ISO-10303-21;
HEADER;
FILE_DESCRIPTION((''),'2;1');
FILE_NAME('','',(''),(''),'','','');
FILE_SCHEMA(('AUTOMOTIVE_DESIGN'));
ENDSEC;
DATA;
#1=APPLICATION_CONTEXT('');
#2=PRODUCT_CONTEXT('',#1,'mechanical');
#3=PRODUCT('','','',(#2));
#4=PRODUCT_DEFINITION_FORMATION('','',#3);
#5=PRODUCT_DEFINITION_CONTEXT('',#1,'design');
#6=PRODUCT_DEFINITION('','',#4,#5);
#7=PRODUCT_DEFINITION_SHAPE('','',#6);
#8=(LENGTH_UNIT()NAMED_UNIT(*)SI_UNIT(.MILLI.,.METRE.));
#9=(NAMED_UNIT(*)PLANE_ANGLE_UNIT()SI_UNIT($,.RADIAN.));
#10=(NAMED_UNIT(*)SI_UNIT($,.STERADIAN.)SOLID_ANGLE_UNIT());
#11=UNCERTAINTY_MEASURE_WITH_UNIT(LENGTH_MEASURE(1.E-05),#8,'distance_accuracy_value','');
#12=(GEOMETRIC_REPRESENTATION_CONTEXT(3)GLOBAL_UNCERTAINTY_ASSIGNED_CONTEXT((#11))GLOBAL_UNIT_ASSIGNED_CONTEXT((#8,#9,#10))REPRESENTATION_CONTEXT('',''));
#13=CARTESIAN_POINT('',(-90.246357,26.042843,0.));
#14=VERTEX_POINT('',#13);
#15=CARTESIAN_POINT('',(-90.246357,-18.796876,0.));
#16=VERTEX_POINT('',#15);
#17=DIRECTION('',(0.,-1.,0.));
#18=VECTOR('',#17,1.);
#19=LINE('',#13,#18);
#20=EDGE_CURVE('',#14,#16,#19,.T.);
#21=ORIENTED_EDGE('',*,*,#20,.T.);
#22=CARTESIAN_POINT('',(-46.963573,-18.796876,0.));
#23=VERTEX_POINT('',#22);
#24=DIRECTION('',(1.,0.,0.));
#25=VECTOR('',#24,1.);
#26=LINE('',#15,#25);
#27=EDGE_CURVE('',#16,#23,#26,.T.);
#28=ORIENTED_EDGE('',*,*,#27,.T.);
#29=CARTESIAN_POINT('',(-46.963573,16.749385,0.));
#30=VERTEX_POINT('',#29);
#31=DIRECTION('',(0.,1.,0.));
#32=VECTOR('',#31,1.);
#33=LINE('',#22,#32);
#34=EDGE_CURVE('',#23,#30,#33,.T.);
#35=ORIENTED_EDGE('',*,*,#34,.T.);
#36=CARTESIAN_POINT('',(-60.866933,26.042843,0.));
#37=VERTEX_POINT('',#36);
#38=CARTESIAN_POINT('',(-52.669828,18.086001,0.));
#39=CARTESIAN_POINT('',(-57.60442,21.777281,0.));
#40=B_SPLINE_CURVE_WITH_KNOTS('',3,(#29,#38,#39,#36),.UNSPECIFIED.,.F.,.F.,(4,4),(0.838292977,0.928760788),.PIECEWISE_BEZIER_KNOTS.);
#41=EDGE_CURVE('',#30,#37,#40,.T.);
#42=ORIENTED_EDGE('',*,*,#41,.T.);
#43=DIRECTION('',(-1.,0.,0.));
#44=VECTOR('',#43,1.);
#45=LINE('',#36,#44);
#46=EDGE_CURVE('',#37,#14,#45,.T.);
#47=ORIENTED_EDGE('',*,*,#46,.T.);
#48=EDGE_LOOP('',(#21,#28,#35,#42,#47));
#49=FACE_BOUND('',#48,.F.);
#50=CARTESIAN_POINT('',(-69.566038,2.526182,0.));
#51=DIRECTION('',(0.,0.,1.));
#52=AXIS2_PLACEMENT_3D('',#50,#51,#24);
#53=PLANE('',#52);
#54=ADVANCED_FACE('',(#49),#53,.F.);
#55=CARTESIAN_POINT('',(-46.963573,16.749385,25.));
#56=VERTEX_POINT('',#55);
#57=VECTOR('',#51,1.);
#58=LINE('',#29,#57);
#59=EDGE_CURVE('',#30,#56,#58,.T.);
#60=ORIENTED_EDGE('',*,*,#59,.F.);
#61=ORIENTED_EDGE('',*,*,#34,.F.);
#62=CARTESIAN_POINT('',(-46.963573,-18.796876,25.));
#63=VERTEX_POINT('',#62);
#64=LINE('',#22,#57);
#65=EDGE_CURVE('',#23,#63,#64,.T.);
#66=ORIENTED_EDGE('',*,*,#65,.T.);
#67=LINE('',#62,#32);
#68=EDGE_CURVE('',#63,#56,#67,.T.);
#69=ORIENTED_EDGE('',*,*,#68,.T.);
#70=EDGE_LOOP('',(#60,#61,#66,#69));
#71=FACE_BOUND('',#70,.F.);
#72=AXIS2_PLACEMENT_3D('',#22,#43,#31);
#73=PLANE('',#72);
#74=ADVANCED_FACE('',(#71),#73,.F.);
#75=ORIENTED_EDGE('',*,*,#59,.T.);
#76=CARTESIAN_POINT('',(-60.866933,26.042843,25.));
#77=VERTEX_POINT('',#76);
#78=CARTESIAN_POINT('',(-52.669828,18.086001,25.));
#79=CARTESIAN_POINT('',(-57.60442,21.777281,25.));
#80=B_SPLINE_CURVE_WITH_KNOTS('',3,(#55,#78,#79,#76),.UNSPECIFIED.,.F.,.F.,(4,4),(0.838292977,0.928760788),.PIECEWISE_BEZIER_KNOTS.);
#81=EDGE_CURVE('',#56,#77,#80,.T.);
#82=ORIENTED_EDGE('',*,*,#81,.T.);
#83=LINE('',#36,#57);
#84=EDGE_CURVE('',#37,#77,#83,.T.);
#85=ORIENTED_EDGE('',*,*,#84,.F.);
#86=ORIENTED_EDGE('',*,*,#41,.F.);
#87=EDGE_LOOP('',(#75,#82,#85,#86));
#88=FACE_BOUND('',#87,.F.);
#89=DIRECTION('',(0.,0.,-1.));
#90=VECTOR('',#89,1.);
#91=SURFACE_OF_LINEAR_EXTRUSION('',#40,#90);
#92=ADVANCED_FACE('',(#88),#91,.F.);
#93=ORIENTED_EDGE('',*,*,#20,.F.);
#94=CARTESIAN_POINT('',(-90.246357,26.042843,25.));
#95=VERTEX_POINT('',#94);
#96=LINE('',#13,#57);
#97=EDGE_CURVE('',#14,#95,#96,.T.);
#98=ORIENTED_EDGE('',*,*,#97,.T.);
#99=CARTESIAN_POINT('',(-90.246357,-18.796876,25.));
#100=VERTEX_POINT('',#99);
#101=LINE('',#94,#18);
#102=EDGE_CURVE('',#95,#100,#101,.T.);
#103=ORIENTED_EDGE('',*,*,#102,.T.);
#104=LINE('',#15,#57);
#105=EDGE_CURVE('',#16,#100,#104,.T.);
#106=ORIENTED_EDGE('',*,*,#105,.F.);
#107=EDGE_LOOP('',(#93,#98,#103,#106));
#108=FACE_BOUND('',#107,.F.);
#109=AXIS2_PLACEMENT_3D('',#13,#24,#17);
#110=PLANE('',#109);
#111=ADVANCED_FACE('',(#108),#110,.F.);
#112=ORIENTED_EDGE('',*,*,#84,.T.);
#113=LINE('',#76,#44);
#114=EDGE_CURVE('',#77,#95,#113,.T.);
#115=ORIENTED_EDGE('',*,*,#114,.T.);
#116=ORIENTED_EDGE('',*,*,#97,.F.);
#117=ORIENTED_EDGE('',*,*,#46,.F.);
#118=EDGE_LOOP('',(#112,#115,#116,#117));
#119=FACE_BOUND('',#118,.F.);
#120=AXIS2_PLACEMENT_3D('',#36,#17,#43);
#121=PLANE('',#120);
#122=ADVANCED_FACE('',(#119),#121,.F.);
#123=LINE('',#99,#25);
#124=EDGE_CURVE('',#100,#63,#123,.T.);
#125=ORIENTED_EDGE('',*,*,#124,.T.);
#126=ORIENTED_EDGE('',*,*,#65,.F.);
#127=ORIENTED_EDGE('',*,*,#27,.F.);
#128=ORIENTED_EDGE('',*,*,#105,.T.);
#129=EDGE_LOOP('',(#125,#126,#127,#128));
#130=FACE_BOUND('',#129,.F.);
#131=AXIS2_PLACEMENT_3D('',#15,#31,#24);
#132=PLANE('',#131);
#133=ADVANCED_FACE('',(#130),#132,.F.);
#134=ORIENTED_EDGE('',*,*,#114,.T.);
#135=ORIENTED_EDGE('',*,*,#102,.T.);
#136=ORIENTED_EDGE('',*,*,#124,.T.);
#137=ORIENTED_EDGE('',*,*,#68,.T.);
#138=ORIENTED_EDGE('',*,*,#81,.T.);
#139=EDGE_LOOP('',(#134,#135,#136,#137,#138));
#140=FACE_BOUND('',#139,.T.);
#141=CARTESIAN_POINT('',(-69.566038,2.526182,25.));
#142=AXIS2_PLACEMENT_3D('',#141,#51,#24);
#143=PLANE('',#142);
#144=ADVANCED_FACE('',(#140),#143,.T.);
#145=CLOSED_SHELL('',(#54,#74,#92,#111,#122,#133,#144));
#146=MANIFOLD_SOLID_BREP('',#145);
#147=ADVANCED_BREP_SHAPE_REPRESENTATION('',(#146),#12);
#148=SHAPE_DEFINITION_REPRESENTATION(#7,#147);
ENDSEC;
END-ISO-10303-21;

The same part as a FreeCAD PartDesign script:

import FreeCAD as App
import Part
import Sketcher
from FreeCAD import Vector

doc = App.newDocument("Part")
body = doc.addObject("PartDesign::Body", "Body")

# Sketch on XY plane
sketch1 = doc.addObject("Sketcher::SketchObject", "Sketch")
body.addObject(sketch1)
sketch1.AttachmentSupport = (doc.XY_Plane, [""])
sketch1.MapMode = "FlatFace"
sketch1.addGeometry(Part.LineSegment(Vector(-60.866933, 26.042843, 0), Vector(-90.246357, 26.042843, 0)), False)
sketch1.addGeometry(Part.LineSegment(Vector(-90.246357, 26.042843, 0), Vector(-90.246357, -18.796876, 0)), False)
sketch1.addGeometry(Part.LineSegment(Vector(-90.246357, -18.796876, 0), Vector(-46.963573, -18.796876, 0)), False)
sketch1.addGeometry(Part.LineSegment(Vector(-46.963573, -18.796876, 0), Vector(-46.963573, 16.749385, 0)), False)
sketch1.addGeometry(Part.BSplineCurve([Vector(-46.963573, 16.749385, 0), Vector(-52.669828, 18.086001, 0), Vector(-57.60442, 21.777281, 0), Vector(-60.866933, 26.042843, 0)], [4, 4], [0.838292977, 0.928760788], False, 3, [1, 1, 1, 1], False), False)
sketch1.addConstraint(Sketcher.Constraint("Block", 4))
sketch1.addConstraint(Sketcher.Constraint("Coincident", 0, 2, 1, 1))
sketch1.addConstraint(Sketcher.Constraint("Coincident", 1, 2, 2, 1))
sketch1.addConstraint(Sketcher.Constraint("Coincident", 2, 2, 3, 1))
sketch1.addConstraint(Sketcher.Constraint("Coincident", 3, 2, 4, 1))
sketch1.addConstraint(Sketcher.Constraint("Coincident", 4, 2, 0, 1))
sketch1.addConstraint(Sketcher.Constraint("Horizontal", 0))
sketch1.addConstraint(Sketcher.Constraint("Vertical", 1))
sketch1.addConstraint(Sketcher.Constraint("Horizontal", 2))
sketch1.addConstraint(Sketcher.Constraint("Vertical", 3))
sketch1.addConstraint(Sketcher.Constraint("DistanceY", 1, 2, 1, 1, 44.839719))
sketch1.addConstraint(Sketcher.Constraint("DistanceX", 0, 2, 0, 1, 29.379424))
pad1 = doc.addObject("PartDesign::Pad", "Pad")
body.addObject(pad1)
pad1.Profile = sketch1
pad1.Length = 25

doc.recompute()
